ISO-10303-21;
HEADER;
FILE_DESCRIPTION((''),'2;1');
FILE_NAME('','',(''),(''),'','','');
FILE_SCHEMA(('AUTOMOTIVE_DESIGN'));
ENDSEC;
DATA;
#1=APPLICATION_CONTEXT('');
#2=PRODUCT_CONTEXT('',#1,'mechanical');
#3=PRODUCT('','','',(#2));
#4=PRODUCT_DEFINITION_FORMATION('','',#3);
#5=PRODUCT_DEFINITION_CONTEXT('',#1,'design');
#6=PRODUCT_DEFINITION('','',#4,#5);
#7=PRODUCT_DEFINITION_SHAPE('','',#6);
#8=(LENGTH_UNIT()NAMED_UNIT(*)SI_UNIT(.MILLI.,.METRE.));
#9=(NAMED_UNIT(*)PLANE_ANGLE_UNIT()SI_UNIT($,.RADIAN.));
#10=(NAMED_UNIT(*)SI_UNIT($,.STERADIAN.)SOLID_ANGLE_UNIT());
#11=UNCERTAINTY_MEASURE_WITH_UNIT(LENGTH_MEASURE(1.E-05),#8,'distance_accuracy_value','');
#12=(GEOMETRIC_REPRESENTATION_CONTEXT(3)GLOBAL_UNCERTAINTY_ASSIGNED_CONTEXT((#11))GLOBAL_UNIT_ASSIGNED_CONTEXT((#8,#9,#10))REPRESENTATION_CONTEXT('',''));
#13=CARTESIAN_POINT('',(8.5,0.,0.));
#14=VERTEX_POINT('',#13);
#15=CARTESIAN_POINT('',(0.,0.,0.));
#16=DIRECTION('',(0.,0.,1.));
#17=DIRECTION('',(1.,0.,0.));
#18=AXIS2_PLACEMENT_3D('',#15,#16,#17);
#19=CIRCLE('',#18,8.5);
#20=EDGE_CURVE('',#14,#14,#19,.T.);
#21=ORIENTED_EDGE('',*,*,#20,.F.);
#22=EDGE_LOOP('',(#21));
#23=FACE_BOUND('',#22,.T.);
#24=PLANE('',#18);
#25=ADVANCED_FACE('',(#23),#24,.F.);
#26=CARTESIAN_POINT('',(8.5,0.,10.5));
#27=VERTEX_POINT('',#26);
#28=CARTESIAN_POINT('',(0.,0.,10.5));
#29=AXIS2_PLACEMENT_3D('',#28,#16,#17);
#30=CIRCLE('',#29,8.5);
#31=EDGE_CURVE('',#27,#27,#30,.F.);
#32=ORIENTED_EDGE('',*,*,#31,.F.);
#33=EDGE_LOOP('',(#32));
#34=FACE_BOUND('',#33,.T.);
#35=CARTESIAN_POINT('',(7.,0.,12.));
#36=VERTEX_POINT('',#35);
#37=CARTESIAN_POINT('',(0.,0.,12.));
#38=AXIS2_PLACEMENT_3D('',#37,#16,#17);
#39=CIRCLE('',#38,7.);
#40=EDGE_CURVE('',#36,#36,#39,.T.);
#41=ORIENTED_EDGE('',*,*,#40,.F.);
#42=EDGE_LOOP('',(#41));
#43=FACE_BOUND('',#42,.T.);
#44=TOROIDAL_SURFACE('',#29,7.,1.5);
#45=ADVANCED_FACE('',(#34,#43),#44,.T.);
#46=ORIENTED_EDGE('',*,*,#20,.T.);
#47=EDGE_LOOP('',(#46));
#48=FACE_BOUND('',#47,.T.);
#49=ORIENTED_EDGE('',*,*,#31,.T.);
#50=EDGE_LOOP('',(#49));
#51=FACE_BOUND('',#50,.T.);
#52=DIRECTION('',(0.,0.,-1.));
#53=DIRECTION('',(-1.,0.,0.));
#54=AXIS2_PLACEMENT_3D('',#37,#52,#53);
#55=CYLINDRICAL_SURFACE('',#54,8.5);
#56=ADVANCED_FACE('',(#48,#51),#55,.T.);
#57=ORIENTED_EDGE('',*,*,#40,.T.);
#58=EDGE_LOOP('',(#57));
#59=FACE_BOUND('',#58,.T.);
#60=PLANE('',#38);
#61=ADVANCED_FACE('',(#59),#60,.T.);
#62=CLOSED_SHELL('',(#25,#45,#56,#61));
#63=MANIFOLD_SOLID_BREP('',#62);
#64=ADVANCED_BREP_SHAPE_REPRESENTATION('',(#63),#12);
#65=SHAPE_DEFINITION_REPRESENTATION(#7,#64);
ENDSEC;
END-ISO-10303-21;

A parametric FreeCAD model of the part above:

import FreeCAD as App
import Part
import Sketcher
from FreeCAD import Vector


def edges_at(feature, points):
    """Names of the edges that pass closest to the given points."""
    edges = feature.Shape.Edges
    near = lambda p: min(range(len(edges)), key=lambda i: edges[i].distToShape(Part.Vertex(*p))[0])
    return sorted({f"Edge{near(p) + 1}" for p in points})

doc = App.newDocument("Part")
body = doc.addObject("PartDesign::Body", "Body")

sketch1 = body.newObject("Sketcher::SketchObject", "Sketch")
sketch1.AttachmentSupport = (doc.getObject("XY_Plane"), [""])
sketch1.MapMode = "FlatFace"
sketch1.addGeometry(Part.Circle(Vector(0, 0, 0), Vector(0, 0, 1), 8), False)
sketch1.addConstraint([
    Sketcher.Constraint("Coincident", 0, 3, -1, 1),
    Sketcher.Constraint("Diameter", 0, 17.0),
])
pad1 = body.newObject("PartDesign::Pad", "Pad")
pad1.Profile = sketch1
pad1.Length = 12
doc.recompute()

fillet = body.newObject("PartDesign::Fillet", "Fillet")
fillet.Base = (pad1, edges_at(pad1, [(-8.5, 0, 12)]))
fillet.Radius = 1.5

doc.recompute()
